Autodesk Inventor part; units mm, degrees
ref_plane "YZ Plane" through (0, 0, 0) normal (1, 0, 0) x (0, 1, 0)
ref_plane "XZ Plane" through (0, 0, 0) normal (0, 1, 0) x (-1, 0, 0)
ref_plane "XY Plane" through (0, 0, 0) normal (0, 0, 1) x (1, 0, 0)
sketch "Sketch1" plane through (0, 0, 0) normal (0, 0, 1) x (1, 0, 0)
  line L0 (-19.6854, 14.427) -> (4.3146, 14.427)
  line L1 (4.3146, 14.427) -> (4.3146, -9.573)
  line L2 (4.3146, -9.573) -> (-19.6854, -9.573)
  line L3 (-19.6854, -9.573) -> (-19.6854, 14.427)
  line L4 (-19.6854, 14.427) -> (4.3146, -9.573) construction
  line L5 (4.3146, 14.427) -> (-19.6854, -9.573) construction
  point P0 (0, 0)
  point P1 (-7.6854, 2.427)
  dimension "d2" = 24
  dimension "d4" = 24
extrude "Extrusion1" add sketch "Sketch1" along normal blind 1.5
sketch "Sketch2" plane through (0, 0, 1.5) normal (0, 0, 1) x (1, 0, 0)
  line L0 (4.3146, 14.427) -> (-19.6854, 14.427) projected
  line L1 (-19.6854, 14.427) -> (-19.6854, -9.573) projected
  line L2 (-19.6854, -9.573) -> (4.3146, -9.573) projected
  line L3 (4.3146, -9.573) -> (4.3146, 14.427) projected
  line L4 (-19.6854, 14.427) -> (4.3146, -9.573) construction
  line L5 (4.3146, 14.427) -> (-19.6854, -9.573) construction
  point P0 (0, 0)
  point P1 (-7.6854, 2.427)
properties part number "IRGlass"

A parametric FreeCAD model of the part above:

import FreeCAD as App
import Part
import Sketcher
Q = App.Units.Quantity

doc = App.newDocument("Part")
params = doc.addObject("Spreadsheet::Sheet", "Params")
for row, (alias, value) in enumerate([
    ("sketch1_width", "24 mm"),
    ("pad1_length", "1.5 mm"),
], start=1):
    params.set(f"A{row}", alias)
    params.set(f"B{row}", "=" + value)
    params.setAlias(f"B{row}", alias)

body = doc.addObject("PartDesign::Body", "Body")

# Sketch on XY plane
sketch1 = body.newObject("Sketcher::SketchObject", "Sketch")
sketch1.AttachmentSupport = (doc.getObject("XY_Plane"), [""])
sketch1.MapMode = "FlatFace"
sketch1.addGeometry(Part.LineSegment(App.Vector(4, 14, 0), App.Vector(-20, 14, 0)), False)
sketch1.addGeometry(Part.LineSegment(App.Vector(-20, 14, 0), App.Vector(-20, -10, 0)), False)
sketch1.addGeometry(Part.LineSegment(App.Vector(-20, -10, 0), App.Vector(4, -10, 0)), False)
sketch1.addGeometry(Part.LineSegment(App.Vector(4, -10, 0), App.Vector(4, 14, 0)), False)
sketch1.addConstraint(Sketcher.Constraint("Coincident", 0, 2, 1, 1))
sketch1.addConstraint(Sketcher.Constraint("Coincident", 1, 2, 2, 1))
sketch1.addConstraint(Sketcher.Constraint("Coincident", 2, 2, 3, 1))
sketch1.addConstraint(Sketcher.Constraint("Coincident", 3, 2, 0, 1))
sketch1.addConstraint(Sketcher.Constraint("Horizontal", 0))
sketch1.addConstraint(Sketcher.Constraint("Vertical", 1))
sketch1.addConstraint(Sketcher.Constraint("Horizontal", 2))
sketch1.addConstraint(Sketcher.Constraint("Vertical", 3))
sketch1.addConstraint(Sketcher.Constraint("Equal", 2, 1))
sketch1.addConstraint(Sketcher.Constraint("DistanceX", 0, 2, 0, 1, Q("24 mm")))
sketch1.addConstraint(Sketcher.Constraint("DistanceY", -1, 1, 0, 2, Q("14.427 mm")))
sketch1.addConstraint(Sketcher.Constraint("DistanceX", 0, 2, -1, 1, Q("19.6854 mm")))
sketch1.setExpression("Constraints[9]", "Params.sketch1_width")
pad1 = body.newObject("PartDesign::Pad", "Pad")
pad1.Profile = sketch1
pad1.setExpression("Length", "Params.pad1_length")

doc.recompute()
